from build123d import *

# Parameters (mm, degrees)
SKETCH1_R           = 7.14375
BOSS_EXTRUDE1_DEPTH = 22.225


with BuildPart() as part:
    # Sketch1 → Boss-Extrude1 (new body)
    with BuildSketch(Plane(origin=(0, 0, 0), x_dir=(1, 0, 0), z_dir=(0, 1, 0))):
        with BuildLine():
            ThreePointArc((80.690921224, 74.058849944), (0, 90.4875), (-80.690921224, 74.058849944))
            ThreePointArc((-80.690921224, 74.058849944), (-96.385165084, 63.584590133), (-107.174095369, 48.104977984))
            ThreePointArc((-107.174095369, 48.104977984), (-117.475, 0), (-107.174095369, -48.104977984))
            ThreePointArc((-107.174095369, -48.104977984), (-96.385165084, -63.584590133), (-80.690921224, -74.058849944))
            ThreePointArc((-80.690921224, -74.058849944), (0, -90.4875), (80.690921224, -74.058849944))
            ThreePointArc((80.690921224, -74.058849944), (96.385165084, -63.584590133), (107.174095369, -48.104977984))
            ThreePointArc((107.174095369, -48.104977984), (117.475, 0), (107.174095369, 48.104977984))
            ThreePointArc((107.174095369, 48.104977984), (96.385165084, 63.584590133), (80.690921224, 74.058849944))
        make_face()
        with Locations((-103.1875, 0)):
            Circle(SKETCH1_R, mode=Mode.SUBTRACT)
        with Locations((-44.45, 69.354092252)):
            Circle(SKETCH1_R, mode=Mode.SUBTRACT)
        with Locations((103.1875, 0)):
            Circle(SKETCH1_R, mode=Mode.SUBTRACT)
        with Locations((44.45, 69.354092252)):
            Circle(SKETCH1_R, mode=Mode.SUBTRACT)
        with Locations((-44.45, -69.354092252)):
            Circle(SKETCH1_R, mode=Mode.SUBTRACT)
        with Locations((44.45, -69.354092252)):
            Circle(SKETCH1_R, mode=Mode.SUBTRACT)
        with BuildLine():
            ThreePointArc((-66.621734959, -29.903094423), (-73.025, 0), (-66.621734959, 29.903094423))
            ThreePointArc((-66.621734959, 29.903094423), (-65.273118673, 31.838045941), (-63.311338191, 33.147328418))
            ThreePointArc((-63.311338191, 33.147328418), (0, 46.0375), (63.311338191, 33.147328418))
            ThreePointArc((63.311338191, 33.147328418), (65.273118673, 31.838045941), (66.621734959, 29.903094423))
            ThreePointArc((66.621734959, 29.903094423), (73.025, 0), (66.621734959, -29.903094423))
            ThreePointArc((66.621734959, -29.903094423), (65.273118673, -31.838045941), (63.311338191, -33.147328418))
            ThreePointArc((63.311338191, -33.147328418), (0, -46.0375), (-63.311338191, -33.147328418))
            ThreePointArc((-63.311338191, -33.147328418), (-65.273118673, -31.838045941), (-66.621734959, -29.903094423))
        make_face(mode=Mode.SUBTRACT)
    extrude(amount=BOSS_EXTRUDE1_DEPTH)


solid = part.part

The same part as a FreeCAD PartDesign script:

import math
import FreeCAD as App
import Part
import Sketcher

V = App.Vector
Q = App.Units.Quantity

doc = App.newDocument("Part")
body = doc.addObject("PartDesign::Body", "Body")

# Sketch on XZ plane
sketch1 = body.newObject("Sketcher::SketchObject", "Sketch")
sketch1.AttachmentSupport = (doc.getObject("XZ_Plane"), [""])
sketch1.MapMode = "FlatFace"
sketch1.addGeometry([
    Part.ArcOfCircle(Part.Circle(V(0, 115.8875, 0), V(0, 0, 1), 206.375), math.radians(-113.016223), math.radians(-66.983777)),  # 0
    Part.ArcOfCircle(Part.Circle(V(-60.828541, -27.302825, 0), V(0, 0, 1), 50.8), math.radians(-155.827124), math.radians(-113.016223)),  # 1
    Part.ArcOfCircle(Part.Circle(V(0, 0, 0), V(0, 0, 1), 117.475), math.radians(155.827124), math.radians(204.172876)),  # 2
    Part.ArcOfCircle(Part.Circle(V(-60.828541, 27.302825, 0), V(0, 0, 1), 50.8), math.radians(113.016223), math.radians(155.827124)),  # 3
    Part.ArcOfCircle(Part.Circle(V(0, -115.8875, 0), V(0, 0, 1), 206.375), math.radians(66.983777), math.radians(113.016223)),  # 4
    Part.ArcOfCircle(Part.Circle(V(60.828541, 27.302825, 0), V(0, 0, 1), 50.8), math.radians(24.172876), math.radians(66.983777)),  # 5
    Part.ArcOfCircle(Part.Circle(V(0, 0, 0), V(0, 0, 1), 117.475), math.radians(-24.172876), math.radians(24.172876)),  # 6
    Part.ArcOfCircle(Part.Circle(V(60.828541, -27.302825, 0), V(0, 0, 1), 50.8), math.radians(-66.983777), math.radians(-24.172876)),  # 7
    Part.Circle(V(-44.45, 69.354092, 0), V(0, 0, 1), 7.14375),  # 8
    Part.Circle(V(44.45, 69.354092, 0), V(0, 0, 1), 7.14375),  # 9
    Part.Circle(V(-103.1875, 0, 0), V(0, 0, 1), 7.14375),  # 10
    Part.Circle(V(-44.45, -69.354092, 0), V(0, 0, 1), 7.14375),  # 11
    Part.ArcOfCircle(Part.Circle(V(-60.828541, 27.302825, 0), V(0, 0, 1), 6.35), math.radians(113.016223), math.radians(155.827124)),  # 12
    Part.ArcOfCircle(Part.Circle(V(0, 0, 0), V(0, 0, 1), 73.025), math.radians(155.827124), math.radians(204.172876)),  # 13
    Part.ArcOfCircle(Part.Circle(V(-60.828541, -27.302825, 0), V(0, 0, 1), 6.35), math.radians(-155.827124), math.radians(-113.016223)),  # 14
    Part.ArcOfCircle(Part.Circle(V(0, 115.8875, 0), V(0, 0, 1), 161.925), math.radians(-113.016223), math.radians(-66.983777)),  # 15
    Part.ArcOfCircle(Part.Circle(V(60.828541, -27.302825, 0), V(0, 0, 1), 6.35), math.radians(-66.983777), math.radians(-24.172876)),  # 16
    Part.ArcOfCircle(Part.Circle(V(0, 0, 0), V(0, 0, 1), 73.025), math.radians(-24.172876), math.radians(24.172876)),  # 17
    Part.ArcOfCircle(Part.Circle(V(60.828541, 27.302825, 0), V(0, 0, 1), 6.35), math.radians(24.172876), math.radians(66.983777)),  # 18
    Part.ArcOfCircle(Part.Circle(V(0, -115.8875, 0), V(0, 0, 1), 161.925), math.radians(66.983777), math.radians(113.016223)),  # 19
    Part.Circle(V(103.1875, 0, 0), V(0, 0, 1), 7.14375),  # 20
    Part.Circle(V(44.45, -69.354092, 0), V(0, 0, 1), 7.14375),  # 21
], False)
sketch1.addConstraint([
    Sketcher.Constraint("Tangent", 0, 1, 1, 2),
    Sketcher.Constraint("Tangent", 1, 1, 2, 2),
    Sketcher.Constraint("Tangent", 2, 1, 3, 2),
    Sketcher.Constraint("Tangent", 3, 1, 4, 2),
    Sketcher.Constraint("Tangent", 4, 1, 5, 2),
    Sketcher.Constraint("Tangent", 5, 1, 6, 2),
    Sketcher.Constraint("Tangent", 6, 1, 7, 2),
    Sketcher.Constraint("Tangent", 7, 1, 0, 2),
    Sketcher.Constraint("Tangent", 12, 2, 13, 1),
    Sketcher.Constraint("Tangent", 13, 2, 14, 1),
    Sketcher.Constraint("Tangent", 14, 2, 15, 1),
    Sketcher.Constraint("Tangent", 15, 2, 16, 1),
    Sketcher.Constraint("Tangent", 16, 2, 17, 1),
    Sketcher.Constraint("Tangent", 17, 2, 18, 1),
    Sketcher.Constraint("Tangent", 18, 2, 19, 1),
    Sketcher.Constraint("Tangent", 19, 2, 12, 1),
    Sketcher.Constraint("Coincident", 2, 3, -1, 1),
    Sketcher.Constraint("Coincident", 6, 3, -1, 1),
    Sketcher.Constraint("Coincident", 13, 3, -1, 1),
    Sketcher.Constraint("Coincident", 17, 3, -1, 1),
    Sketcher.Constraint("Coincident", 12, 3, 3, 3),
    Sketcher.Constraint("Coincident", 14, 3, 1, 3),
    Sketcher.Constraint("Coincident", 15, 3, 0, 3),
    Sketcher.Constraint("Coincident", 16, 3, 7, 3),
    Sketcher.Constraint("Coincident", 18, 3, 5, 3),
    Sketcher.Constraint("Equal", 1, 3),
    Sketcher.Constraint("Equal", 0, 4),
    Sketcher.Constraint("Equal", 3, 5),
    Sketcher.Constraint("Equal", 2, 6),
    Sketcher.Constraint("Equal", 5, 7),
    Sketcher.Constraint("Equal", 8, 9),
    Sketcher.Constraint("Equal", 9, 10),
    Sketcher.Constraint("Equal", 10, 11),
    Sketcher.Constraint("Equal", 15, 19),
    Sketcher.Constraint("Equal", 11, 20),
    Sketcher.Constraint("Equal", 20, 21),
    Sketcher.Constraint("Symmetric", 0, 3, 4, 3, -1, 1),
    Sketcher.Constraint("Symmetric", 9, 3, 11, 3, -1, 1),
    Sketcher.Constraint("Symmetric", 10, 3, 20, 3, -1, 1),
    Sketcher.Constraint("Symmetric", 8, 3, 21, 3, -1, 1),
    Sketcher.Constraint("Symmetric", 8, 3, 9, 3, -2),
    Sketcher.Constraint("PointOnObject", 0, 3, -2),
    Sketcher.Constraint("PointOnObject", 10, 3, -1),
    Sketcher.Constraint("Radius", 1, Q("2 in")),
    Sketcher.Constraint("Radius", 12, Q("0.25 in")),
    Sketcher.Constraint("Diameter", 8, Q("0.5625 in")),
    Sketcher.Constraint("Radius", 0, Q("8.125 in")),
    Sketcher.Constraint("Radius", 2, Q("4.625 in")),
    Sketcher.Constraint("DistanceX", 8, 3, 9, 3, Q("3.5 in")),
    Sketcher.Constraint("DistanceY", -1, 1, 0, 3, Q("4.5625 in")),
    Sketcher.Constraint("DistanceX", 10, 3, -1, 1, Q("4.0625 in")),
    Sketcher.Constraint("DistanceY", -1, 1, 8, 3, Q("69.354092 mm")),
])
pad1 = body.newObject("PartDesign::Pad", "Pad")
pad1.Profile = sketch1
pad1.Length = Q("0.875 in")
pad1.Reversed = True

doc.recompute()
